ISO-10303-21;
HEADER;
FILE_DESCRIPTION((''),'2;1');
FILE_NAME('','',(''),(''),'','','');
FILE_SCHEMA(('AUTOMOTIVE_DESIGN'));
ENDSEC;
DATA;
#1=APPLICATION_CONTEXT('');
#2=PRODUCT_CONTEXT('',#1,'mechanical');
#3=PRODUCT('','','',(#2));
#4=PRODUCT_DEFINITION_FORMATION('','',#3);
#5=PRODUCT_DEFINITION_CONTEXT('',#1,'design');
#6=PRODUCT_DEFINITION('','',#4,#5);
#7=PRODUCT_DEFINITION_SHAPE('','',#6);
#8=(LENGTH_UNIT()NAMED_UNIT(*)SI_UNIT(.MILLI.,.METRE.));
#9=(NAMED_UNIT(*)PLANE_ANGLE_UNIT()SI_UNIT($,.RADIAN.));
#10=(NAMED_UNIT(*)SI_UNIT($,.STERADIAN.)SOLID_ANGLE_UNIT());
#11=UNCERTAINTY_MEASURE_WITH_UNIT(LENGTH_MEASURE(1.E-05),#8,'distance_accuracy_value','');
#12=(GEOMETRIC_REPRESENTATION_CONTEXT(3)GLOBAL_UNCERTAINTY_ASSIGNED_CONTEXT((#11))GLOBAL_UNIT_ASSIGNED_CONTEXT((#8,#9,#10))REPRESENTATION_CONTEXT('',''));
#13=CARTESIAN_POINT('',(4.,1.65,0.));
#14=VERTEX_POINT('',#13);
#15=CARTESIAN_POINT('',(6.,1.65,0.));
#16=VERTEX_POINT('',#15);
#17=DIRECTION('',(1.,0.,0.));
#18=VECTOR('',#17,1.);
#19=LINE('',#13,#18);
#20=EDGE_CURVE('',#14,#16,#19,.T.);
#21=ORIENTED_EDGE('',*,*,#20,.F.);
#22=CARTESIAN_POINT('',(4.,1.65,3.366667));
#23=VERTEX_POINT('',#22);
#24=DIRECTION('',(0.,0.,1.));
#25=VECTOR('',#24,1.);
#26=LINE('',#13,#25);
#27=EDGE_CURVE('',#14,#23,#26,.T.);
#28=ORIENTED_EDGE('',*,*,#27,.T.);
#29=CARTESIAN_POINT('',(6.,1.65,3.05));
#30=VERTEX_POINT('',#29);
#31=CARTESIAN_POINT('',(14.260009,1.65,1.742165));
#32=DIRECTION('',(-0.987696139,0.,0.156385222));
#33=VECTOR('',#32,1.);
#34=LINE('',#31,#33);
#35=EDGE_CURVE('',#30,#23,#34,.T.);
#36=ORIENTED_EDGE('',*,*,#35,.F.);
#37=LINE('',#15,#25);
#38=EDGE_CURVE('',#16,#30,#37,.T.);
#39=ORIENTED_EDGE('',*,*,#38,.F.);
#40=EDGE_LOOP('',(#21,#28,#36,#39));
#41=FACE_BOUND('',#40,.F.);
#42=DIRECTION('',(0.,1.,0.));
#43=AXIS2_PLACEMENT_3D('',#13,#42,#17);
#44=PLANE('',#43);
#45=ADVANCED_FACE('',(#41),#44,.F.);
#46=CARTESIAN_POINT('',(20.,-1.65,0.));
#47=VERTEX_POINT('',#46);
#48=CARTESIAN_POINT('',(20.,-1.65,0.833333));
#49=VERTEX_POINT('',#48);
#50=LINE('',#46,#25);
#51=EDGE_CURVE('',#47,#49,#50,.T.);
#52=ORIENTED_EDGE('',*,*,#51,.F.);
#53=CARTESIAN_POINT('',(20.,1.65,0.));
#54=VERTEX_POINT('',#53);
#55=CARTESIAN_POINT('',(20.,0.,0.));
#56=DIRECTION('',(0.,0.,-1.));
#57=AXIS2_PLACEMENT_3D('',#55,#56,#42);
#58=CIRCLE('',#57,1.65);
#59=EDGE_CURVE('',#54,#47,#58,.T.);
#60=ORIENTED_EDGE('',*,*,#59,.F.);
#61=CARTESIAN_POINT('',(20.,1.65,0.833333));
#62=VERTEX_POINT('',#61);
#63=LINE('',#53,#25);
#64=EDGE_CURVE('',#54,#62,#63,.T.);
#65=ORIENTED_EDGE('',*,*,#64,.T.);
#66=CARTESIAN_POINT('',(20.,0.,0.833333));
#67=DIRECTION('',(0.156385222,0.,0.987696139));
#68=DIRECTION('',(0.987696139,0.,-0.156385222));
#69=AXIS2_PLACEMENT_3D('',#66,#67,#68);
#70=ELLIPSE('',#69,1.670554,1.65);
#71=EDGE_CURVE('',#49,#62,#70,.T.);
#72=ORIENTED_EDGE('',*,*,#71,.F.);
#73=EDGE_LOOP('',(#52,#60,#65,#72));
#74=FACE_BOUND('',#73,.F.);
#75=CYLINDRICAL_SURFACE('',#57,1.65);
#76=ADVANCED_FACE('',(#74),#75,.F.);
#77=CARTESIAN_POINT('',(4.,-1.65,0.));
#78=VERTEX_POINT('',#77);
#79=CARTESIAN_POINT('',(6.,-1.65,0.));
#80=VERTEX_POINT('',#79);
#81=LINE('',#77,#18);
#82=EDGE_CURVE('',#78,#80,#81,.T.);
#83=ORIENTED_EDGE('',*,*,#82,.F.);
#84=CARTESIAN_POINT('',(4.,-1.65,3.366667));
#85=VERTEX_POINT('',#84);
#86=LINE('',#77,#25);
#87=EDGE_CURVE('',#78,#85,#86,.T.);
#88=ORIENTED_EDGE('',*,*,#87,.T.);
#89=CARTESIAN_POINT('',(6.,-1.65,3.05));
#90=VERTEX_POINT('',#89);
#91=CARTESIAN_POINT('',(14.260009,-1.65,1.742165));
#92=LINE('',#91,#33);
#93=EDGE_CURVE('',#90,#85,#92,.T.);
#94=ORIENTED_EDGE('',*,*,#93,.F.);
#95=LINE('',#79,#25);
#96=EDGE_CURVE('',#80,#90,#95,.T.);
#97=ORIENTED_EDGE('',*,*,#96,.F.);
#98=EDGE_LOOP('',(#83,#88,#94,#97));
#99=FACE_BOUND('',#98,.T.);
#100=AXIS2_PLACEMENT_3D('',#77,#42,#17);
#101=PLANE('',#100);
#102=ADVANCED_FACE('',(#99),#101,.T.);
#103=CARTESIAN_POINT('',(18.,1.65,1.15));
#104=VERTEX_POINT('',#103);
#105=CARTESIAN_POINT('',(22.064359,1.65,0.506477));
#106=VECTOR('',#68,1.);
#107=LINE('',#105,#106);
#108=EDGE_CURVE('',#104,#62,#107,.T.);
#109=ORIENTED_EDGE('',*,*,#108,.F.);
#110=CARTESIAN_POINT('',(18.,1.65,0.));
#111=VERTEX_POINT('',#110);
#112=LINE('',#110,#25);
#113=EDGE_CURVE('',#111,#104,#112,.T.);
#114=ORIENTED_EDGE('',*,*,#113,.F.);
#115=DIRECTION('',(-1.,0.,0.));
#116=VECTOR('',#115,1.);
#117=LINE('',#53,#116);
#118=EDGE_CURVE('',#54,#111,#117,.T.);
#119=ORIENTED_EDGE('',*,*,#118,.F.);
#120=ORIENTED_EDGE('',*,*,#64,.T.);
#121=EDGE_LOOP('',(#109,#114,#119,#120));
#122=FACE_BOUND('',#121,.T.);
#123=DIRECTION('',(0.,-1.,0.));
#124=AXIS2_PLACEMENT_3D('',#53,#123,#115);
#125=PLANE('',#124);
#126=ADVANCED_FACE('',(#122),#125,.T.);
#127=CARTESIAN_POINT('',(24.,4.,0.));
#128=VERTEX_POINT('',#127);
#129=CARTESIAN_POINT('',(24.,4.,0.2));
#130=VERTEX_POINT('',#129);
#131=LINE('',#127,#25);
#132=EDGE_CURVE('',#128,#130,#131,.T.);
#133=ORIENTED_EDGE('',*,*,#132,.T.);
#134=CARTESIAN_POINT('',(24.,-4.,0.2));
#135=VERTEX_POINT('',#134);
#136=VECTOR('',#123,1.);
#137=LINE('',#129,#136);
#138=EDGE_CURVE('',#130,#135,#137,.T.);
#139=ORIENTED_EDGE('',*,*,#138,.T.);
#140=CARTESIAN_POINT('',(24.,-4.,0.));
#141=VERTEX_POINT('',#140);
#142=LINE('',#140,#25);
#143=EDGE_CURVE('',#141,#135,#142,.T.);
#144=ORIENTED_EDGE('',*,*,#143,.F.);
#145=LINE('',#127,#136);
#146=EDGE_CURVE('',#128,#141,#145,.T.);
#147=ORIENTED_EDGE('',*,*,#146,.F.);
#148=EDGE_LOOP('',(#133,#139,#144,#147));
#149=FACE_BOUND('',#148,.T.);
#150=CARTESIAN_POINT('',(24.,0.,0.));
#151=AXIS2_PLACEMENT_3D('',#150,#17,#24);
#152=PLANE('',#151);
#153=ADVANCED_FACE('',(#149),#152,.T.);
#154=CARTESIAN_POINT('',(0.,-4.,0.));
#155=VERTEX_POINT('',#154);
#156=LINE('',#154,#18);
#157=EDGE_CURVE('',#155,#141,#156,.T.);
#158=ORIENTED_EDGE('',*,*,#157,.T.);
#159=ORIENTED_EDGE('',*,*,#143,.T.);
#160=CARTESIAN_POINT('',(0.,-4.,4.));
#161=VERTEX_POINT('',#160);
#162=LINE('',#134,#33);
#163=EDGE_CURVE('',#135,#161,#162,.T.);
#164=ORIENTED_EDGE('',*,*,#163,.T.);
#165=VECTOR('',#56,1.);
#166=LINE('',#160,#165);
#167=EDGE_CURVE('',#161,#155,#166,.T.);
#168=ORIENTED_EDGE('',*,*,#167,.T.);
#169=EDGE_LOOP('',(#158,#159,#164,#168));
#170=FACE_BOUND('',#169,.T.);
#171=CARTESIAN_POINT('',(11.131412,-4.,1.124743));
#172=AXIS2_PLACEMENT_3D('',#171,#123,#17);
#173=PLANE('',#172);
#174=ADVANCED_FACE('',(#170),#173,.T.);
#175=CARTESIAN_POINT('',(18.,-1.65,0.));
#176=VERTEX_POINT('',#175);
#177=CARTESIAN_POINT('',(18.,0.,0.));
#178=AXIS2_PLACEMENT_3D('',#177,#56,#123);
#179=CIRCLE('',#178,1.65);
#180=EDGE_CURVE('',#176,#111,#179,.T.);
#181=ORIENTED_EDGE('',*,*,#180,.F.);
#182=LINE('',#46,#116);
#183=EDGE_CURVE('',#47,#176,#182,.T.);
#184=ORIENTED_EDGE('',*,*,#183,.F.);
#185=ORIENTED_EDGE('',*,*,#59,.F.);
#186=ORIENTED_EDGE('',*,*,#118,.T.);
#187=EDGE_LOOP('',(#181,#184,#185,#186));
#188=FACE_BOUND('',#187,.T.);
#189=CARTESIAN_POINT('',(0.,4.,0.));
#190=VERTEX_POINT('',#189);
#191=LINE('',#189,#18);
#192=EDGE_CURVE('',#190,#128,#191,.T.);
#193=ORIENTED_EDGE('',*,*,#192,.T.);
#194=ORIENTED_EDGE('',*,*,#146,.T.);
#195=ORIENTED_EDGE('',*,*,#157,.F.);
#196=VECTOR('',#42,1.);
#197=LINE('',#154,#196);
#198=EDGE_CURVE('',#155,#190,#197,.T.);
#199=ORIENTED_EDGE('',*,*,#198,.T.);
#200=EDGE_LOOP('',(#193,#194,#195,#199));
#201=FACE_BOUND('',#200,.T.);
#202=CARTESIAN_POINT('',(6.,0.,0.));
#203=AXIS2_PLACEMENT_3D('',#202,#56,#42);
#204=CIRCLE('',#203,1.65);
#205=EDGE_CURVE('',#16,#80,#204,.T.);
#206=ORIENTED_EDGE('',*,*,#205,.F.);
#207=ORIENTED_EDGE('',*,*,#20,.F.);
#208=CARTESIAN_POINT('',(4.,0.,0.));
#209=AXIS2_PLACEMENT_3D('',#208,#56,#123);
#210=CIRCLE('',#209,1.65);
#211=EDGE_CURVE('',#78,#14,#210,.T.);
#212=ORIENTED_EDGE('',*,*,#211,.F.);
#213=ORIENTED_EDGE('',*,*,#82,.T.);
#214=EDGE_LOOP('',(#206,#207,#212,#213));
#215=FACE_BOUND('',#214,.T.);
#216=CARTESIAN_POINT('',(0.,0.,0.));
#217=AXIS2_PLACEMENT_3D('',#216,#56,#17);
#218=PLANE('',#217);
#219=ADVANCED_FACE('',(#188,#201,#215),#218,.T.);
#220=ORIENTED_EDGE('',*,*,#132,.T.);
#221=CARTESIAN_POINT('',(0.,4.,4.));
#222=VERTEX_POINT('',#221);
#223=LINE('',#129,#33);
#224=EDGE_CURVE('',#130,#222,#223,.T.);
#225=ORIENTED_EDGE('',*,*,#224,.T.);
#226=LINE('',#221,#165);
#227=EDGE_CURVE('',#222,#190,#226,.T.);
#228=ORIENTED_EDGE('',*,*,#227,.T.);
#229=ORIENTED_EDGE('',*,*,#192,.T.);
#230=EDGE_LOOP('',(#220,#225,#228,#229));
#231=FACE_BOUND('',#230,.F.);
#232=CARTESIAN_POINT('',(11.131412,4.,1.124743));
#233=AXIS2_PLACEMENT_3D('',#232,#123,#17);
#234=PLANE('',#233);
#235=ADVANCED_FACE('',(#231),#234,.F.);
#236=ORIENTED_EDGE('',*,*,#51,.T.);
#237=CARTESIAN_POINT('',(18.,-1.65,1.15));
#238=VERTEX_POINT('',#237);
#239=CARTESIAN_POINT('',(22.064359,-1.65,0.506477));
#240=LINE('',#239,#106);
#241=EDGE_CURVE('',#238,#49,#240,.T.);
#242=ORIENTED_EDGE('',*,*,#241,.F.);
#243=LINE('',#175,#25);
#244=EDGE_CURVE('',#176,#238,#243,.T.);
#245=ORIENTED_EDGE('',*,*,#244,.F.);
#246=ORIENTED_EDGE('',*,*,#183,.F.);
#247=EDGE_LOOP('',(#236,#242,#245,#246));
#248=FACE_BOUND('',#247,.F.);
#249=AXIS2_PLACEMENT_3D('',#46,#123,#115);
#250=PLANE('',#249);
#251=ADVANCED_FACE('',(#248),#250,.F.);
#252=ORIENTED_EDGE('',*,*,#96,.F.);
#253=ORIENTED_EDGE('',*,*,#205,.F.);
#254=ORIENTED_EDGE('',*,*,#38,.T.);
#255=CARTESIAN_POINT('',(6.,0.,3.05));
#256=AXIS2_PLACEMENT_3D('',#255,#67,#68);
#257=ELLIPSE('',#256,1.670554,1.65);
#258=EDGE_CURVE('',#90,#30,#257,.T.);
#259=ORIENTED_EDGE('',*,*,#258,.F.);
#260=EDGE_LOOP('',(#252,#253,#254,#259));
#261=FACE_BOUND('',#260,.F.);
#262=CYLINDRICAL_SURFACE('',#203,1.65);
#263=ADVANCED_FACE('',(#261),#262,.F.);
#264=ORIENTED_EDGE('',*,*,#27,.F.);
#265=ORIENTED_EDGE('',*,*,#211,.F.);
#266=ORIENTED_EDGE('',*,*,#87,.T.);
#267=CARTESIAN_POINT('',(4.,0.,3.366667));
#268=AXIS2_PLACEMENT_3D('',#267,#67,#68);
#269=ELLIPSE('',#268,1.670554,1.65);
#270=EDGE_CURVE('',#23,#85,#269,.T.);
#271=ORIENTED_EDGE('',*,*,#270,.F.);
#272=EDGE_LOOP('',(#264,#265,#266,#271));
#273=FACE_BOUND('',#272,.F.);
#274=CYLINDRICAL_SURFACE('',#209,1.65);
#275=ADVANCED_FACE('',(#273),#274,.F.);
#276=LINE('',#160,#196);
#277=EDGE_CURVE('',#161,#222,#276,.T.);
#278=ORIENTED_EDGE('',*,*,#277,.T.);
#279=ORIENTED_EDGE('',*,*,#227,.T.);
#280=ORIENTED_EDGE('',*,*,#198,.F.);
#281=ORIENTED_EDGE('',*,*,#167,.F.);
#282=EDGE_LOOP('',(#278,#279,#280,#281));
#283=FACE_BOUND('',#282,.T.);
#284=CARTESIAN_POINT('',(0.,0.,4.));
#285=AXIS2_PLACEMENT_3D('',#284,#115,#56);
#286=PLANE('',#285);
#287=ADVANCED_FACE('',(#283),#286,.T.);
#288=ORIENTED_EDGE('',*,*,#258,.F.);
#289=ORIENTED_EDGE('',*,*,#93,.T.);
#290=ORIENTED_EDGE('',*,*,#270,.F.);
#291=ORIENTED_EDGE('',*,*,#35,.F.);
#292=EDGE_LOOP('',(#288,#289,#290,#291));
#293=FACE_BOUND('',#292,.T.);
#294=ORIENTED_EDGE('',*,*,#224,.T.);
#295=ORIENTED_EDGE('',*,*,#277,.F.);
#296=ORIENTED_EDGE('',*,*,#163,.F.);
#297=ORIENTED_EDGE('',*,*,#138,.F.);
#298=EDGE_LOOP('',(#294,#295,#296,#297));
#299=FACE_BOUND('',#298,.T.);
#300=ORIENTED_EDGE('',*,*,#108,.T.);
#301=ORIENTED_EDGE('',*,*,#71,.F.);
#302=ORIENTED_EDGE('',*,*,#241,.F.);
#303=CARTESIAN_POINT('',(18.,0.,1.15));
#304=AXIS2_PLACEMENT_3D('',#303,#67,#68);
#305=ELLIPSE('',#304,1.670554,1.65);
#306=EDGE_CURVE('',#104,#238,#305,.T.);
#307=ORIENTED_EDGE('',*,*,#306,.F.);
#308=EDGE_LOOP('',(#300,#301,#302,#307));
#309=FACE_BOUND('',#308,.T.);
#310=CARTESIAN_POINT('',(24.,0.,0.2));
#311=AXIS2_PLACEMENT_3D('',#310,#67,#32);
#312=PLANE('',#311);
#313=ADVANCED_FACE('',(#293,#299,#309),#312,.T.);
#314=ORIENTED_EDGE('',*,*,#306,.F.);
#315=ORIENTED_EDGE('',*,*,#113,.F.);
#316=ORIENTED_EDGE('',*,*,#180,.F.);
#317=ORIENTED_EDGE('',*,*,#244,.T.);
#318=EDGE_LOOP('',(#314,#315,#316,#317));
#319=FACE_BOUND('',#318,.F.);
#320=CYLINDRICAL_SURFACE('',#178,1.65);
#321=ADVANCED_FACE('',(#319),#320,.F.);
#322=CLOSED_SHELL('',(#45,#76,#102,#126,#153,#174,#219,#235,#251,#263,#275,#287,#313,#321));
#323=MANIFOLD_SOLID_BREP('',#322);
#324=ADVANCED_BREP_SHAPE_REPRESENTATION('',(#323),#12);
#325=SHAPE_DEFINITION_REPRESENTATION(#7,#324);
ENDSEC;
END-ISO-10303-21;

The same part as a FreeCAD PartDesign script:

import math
import FreeCAD as App
import Part
import Sketcher
Q = App.Units.Quantity

doc = App.newDocument("Part")
body = doc.addObject("PartDesign::Body", "Body")

# Sketch on XZ plane
sketch1 = body.newObject("Sketcher::SketchObject", "Sketch")
sketch1.AttachmentSupport = (doc.getObject("XZ_Plane"), [""])
sketch1.MapMode = "FlatFace"
sketch1.addGeometry(Part.LineSegment(App.Vector(0, 0, 0), App.Vector(24, 0, 0)), False)
sketch1.addGeometry(Part.LineSegment(App.Vector(24, 0, 0), App.Vector(24, 0.2, 0)), False)
sketch1.addGeometry(Part.LineSegment(App.Vector(24, 0.2, 0), App.Vector(0, 4, 0)), False)
sketch1.addGeometry(Part.LineSegment(App.Vector(0, 4, 0), App.Vector(0, 0, 0)), False)
sketch1.addConstraint(Sketcher.Constraint("Coincident", 0, 2, 1, 1))
sketch1.addConstraint(Sketcher.Constraint("Coincident", 1, 2, 2, 1))
sketch1.addConstraint(Sketcher.Constraint("Coincident", 2, 2, 3, 1))
sketch1.addConstraint(Sketcher.Constraint("Coincident", 3, 2, 0, 1))
sketch1.addConstraint(Sketcher.Constraint("Horizontal", 0))
sketch1.addConstraint(Sketcher.Constraint("Vertical", 1))
sketch1.addConstraint(Sketcher.Constraint("Vertical", 3))
sketch1.addConstraint(Sketcher.Constraint("Coincident", 3, 2, -1, 1))
sketch1.addConstraint(Sketcher.Constraint("DistanceX", 0, 1, 0, 2, Q("24 mm")))
sketch1.addConstraint(Sketcher.Constraint("DistanceY", 3, 2, 3, 1, Q("4 mm")))
sketch1.addConstraint(Sketcher.Constraint("DistanceY", 1, 1, 1, 2, Q("0.2 mm")))
pad1 = body.newObject("PartDesign::Pad", "Pad")
pad1.Profile = sketch1
pad1.Length = 8
pad1.Midplane = True

# Sketch on XY plane
sketch2 = body.newObject("Sketcher::SketchObject", "Sketch001")
sketch2.AttachmentSupport = (doc.getObject("XY_Plane"), [""])
sketch2.MapMode = "FlatFace"
sketch2.addGeometry(Part.ArcOfCircle(Part.Circle(App.Vector(4, 0, 0), App.Vector(0, 0, 1), 1.6), math.radians(90), math.radians(270)), False)
sketch2.addGeometry(Part.LineSegment(App.Vector(4, 1.6, 0), App.Vector(6, 1.6, 0)), False)
sketch2.addGeometry(Part.ArcOfCircle(Part.Circle(App.Vector(6, 0, 0), App.Vector(0, 0, 1), 1.6), math.radians(-90), math.radians(90)), False)
sketch2.addGeometry(Part.LineSegment(App.Vector(6, -1.6, 0), App.Vector(4, -1.6, 0)), False)
sketch2.addGeometry(Part.ArcOfCircle(Part.Circle(App.Vector(20, 0, 0), App.Vector(0, 0, 1), 1.6), math.radians(-90), math.radians(90)), False)
sketch2.addGeometry(Part.LineSegment(App.Vector(20, -1.6, 0), App.Vector(18, -1.6, 0)), False)
sketch2.addGeometry(Part.ArcOfCircle(Part.Circle(App.Vector(18, 0, 0), App.Vector(0, 0, 1), 1.6), math.radians(90), math.radians(270)), False)
sketch2.addGeometry(Part.LineSegment(App.Vector(18, 1.6, 0), App.Vector(20, 1.6, 0)), False)
sketch2.addConstraint(Sketcher.Constraint("Tangent", 0, 1, 1, 1))
sketch2.addConstraint(Sketcher.Constraint("Tangent", 1, 2, 2, 2))
sketch2.addConstraint(Sketcher.Constraint("Tangent", 2, 1, 3, 1))
sketch2.addConstraint(Sketcher.Constraint("Tangent", 3, 2, 0, 2))
sketch2.addConstraint(Sketcher.Constraint("Tangent", 4, 1, 5, 1))
sketch2.addConstraint(Sketcher.Constraint("Tangent", 5, 2, 6, 2))
sketch2.addConstraint(Sketcher.Constraint("Tangent", 6, 1, 7, 1))
sketch2.addConstraint(Sketcher.Constraint("Tangent", 7, 2, 4, 2))
sketch2.addConstraint(Sketcher.Constraint("Horizontal", 1))
sketch2.addConstraint(Sketcher.Constraint("Horizontal", 3))
sketch2.addConstraint(Sketcher.Constraint("Horizontal", 5))
sketch2.addConstraint(Sketcher.Constraint("Horizontal", 7))
sketch2.addConstraint(Sketcher.Constraint("Equal", 2, 4))
sketch2.addConstraint(Sketcher.Constraint("PointOnObject", 0, 3, -1))
sketch2.addConstraint(Sketcher.Constraint("PointOnObject", 4, 3, -1))
sketch2.addConstraint(Sketcher.Constraint("Equal", 3, 5))
sketch2.addConstraint(Sketcher.Constraint("DistanceX", 1, 1, 1, 2, Q("2 mm")))
sketch2.addConstraint(Sketcher.Constraint("Radius", 0, Q("1.65 mm")))
sketch2.addConstraint(Sketcher.Constraint("DistanceX", -1, 1, 0, 3, Q("4 mm")))
sketch2.addConstraint(Sketcher.Constraint("DistanceX", -1, 1, 4, 3, Q("20 mm")))
pocket1 = body.newObject("PartDesign::Pocket", "Pocket")
pocket1.Profile = sketch2
pocket1.Type = "ThroughAll"
pocket1.Reversed = True

doc.recompute()
